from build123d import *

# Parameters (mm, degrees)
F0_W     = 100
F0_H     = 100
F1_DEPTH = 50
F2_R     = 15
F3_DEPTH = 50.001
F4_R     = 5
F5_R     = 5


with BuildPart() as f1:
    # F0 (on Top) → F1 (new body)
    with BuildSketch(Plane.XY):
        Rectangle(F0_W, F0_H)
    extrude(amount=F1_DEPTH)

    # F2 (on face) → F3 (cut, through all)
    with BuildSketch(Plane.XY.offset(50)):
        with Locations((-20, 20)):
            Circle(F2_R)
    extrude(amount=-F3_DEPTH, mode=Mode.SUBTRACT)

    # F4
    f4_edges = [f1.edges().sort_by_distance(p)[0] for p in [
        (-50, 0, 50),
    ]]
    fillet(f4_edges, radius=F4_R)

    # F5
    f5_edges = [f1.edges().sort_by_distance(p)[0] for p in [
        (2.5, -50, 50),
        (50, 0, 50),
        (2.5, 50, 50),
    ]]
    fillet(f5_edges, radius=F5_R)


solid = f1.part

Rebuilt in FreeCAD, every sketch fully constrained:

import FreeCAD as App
import Part
import Sketcher


def edges_at(feature, points):
    """Names of the edges that pass closest to the given points."""
    edges = feature.Shape.Edges
    near = lambda p: min(range(len(edges)), key=lambda i: edges[i].distToShape(Part.Vertex(*p))[0])
    return sorted({f"Edge{near(p) + 1}" for p in points})


def add_polygon(sketch, points):
    """Adds a closed chain of lines whose ends are joined by coincident constraints."""
    first, n = sketch.GeometryCount, len(points)
    for a, b in zip(points, points[1:] + points[:1]):
        sketch.addGeometry(Part.LineSegment(App.Vector(*a, 0), App.Vector(*b, 0)), False)
    for i in range(n):
        sketch.addConstraint(Sketcher.Constraint("Coincident", first + i, 2, first + (i + 1) % n, 1))

doc = App.newDocument("Part")
params = doc.addObject("Spreadsheet::Sheet", "Params")
for row, (alias, value) in enumerate([
    ("sketch1_width", "100 mm"),
    ("pad1_length", "50 mm"),
    ("sketch2_diameter", "30 mm"),
    ("fillet_radius", "5 mm"),
    ("fillet2_radius", "5 mm"),
], start=1):
    params.set(f"A{row}", alias)
    params.set(f"B{row}", "=" + value)
    params.setAlias(f"B{row}", alias)

body = doc.addObject("PartDesign::Body", "Body")

sketch1 = doc.addObject("Sketcher::SketchObject", "Sketch")
body.addObject(sketch1)
sketch1.AttachmentSupport = (doc.XY_Plane, [""])
sketch1.MapMode = "FlatFace"
add_polygon(sketch1, [(-50, 50), (-50, -50), (50, -50), (50, 50)])
sketch1.addConstraint(Sketcher.Constraint("Vertical", 0))
sketch1.addConstraint(Sketcher.Constraint("Horizontal", 1))
sketch1.addConstraint(Sketcher.Constraint("Vertical", 2))
sketch1.addConstraint(Sketcher.Constraint("Horizontal", 3))
sketch1.addConstraint(Sketcher.Constraint("Symmetric", 0, 2, 2, 2, -1, 1))
sketch1.addConstraint(Sketcher.Constraint("Equal", 3, 0))
sketch1.addConstraint(Sketcher.Constraint("DistanceX", 1, 1, 1, 2, 100.0))
sketch1.setExpression("Constraints[10]", "Params.sketch1_width")
pad1 = doc.addObject("PartDesign::Pad", "Pad")
body.addObject(pad1)
pad1.Profile = sketch1
pad1.setExpression("Length", "Params.pad1_length")

sketch2 = doc.addObject("Sketcher::SketchObject", "Sketch001")
body.addObject(sketch2)
sketch2.AttachmentSupport = (doc.XY_Plane, [""])
sketch2.MapMode = "FlatFace"
sketch2.AttachmentOffset = App.Placement(App.Vector(0, 0, 50), App.Rotation())
sketch2.addGeometry(Part.Circle(App.Vector(-20, 20, 0), App.Vector(0, 0, 1), 15), False)
sketch2.addConstraint(Sketcher.Constraint("Diameter", 0, 30.0))
sketch2.addConstraint(Sketcher.Constraint("DistanceX", 0, 3, -1, 1, 20.0))
sketch2.addConstraint(Sketcher.Constraint("DistanceY", -1, 1, 0, 3, 20.0))
sketch2.setExpression("Constraints[0]", "Params.sketch2_diameter")
pocket1 = doc.addObject("PartDesign::Pocket", "Pocket")
body.addObject(pocket1)
pocket1.Profile = sketch2
pocket1.Type = "ThroughAll"
doc.recompute()

fillet = doc.addObject("PartDesign::Fillet", "Fillet")
body.addObject(fillet)
fillet.Base = (pocket1, edges_at(pocket1, [(-50, 0, 50)]))
fillet.setExpression("Radius", "Params.fillet_radius")
doc.recompute()

fillet2 = doc.addObject("PartDesign::Fillet", "Fillet001")
body.addObject(fillet2)
fillet2.Base = (fillet, edges_at(fillet, [(2.5, -50, 50), (50, 0, 50), (2.5, 50, 50)]))
fillet2.setExpression("Radius", "Params.fillet2_radius")

doc.recompute()
